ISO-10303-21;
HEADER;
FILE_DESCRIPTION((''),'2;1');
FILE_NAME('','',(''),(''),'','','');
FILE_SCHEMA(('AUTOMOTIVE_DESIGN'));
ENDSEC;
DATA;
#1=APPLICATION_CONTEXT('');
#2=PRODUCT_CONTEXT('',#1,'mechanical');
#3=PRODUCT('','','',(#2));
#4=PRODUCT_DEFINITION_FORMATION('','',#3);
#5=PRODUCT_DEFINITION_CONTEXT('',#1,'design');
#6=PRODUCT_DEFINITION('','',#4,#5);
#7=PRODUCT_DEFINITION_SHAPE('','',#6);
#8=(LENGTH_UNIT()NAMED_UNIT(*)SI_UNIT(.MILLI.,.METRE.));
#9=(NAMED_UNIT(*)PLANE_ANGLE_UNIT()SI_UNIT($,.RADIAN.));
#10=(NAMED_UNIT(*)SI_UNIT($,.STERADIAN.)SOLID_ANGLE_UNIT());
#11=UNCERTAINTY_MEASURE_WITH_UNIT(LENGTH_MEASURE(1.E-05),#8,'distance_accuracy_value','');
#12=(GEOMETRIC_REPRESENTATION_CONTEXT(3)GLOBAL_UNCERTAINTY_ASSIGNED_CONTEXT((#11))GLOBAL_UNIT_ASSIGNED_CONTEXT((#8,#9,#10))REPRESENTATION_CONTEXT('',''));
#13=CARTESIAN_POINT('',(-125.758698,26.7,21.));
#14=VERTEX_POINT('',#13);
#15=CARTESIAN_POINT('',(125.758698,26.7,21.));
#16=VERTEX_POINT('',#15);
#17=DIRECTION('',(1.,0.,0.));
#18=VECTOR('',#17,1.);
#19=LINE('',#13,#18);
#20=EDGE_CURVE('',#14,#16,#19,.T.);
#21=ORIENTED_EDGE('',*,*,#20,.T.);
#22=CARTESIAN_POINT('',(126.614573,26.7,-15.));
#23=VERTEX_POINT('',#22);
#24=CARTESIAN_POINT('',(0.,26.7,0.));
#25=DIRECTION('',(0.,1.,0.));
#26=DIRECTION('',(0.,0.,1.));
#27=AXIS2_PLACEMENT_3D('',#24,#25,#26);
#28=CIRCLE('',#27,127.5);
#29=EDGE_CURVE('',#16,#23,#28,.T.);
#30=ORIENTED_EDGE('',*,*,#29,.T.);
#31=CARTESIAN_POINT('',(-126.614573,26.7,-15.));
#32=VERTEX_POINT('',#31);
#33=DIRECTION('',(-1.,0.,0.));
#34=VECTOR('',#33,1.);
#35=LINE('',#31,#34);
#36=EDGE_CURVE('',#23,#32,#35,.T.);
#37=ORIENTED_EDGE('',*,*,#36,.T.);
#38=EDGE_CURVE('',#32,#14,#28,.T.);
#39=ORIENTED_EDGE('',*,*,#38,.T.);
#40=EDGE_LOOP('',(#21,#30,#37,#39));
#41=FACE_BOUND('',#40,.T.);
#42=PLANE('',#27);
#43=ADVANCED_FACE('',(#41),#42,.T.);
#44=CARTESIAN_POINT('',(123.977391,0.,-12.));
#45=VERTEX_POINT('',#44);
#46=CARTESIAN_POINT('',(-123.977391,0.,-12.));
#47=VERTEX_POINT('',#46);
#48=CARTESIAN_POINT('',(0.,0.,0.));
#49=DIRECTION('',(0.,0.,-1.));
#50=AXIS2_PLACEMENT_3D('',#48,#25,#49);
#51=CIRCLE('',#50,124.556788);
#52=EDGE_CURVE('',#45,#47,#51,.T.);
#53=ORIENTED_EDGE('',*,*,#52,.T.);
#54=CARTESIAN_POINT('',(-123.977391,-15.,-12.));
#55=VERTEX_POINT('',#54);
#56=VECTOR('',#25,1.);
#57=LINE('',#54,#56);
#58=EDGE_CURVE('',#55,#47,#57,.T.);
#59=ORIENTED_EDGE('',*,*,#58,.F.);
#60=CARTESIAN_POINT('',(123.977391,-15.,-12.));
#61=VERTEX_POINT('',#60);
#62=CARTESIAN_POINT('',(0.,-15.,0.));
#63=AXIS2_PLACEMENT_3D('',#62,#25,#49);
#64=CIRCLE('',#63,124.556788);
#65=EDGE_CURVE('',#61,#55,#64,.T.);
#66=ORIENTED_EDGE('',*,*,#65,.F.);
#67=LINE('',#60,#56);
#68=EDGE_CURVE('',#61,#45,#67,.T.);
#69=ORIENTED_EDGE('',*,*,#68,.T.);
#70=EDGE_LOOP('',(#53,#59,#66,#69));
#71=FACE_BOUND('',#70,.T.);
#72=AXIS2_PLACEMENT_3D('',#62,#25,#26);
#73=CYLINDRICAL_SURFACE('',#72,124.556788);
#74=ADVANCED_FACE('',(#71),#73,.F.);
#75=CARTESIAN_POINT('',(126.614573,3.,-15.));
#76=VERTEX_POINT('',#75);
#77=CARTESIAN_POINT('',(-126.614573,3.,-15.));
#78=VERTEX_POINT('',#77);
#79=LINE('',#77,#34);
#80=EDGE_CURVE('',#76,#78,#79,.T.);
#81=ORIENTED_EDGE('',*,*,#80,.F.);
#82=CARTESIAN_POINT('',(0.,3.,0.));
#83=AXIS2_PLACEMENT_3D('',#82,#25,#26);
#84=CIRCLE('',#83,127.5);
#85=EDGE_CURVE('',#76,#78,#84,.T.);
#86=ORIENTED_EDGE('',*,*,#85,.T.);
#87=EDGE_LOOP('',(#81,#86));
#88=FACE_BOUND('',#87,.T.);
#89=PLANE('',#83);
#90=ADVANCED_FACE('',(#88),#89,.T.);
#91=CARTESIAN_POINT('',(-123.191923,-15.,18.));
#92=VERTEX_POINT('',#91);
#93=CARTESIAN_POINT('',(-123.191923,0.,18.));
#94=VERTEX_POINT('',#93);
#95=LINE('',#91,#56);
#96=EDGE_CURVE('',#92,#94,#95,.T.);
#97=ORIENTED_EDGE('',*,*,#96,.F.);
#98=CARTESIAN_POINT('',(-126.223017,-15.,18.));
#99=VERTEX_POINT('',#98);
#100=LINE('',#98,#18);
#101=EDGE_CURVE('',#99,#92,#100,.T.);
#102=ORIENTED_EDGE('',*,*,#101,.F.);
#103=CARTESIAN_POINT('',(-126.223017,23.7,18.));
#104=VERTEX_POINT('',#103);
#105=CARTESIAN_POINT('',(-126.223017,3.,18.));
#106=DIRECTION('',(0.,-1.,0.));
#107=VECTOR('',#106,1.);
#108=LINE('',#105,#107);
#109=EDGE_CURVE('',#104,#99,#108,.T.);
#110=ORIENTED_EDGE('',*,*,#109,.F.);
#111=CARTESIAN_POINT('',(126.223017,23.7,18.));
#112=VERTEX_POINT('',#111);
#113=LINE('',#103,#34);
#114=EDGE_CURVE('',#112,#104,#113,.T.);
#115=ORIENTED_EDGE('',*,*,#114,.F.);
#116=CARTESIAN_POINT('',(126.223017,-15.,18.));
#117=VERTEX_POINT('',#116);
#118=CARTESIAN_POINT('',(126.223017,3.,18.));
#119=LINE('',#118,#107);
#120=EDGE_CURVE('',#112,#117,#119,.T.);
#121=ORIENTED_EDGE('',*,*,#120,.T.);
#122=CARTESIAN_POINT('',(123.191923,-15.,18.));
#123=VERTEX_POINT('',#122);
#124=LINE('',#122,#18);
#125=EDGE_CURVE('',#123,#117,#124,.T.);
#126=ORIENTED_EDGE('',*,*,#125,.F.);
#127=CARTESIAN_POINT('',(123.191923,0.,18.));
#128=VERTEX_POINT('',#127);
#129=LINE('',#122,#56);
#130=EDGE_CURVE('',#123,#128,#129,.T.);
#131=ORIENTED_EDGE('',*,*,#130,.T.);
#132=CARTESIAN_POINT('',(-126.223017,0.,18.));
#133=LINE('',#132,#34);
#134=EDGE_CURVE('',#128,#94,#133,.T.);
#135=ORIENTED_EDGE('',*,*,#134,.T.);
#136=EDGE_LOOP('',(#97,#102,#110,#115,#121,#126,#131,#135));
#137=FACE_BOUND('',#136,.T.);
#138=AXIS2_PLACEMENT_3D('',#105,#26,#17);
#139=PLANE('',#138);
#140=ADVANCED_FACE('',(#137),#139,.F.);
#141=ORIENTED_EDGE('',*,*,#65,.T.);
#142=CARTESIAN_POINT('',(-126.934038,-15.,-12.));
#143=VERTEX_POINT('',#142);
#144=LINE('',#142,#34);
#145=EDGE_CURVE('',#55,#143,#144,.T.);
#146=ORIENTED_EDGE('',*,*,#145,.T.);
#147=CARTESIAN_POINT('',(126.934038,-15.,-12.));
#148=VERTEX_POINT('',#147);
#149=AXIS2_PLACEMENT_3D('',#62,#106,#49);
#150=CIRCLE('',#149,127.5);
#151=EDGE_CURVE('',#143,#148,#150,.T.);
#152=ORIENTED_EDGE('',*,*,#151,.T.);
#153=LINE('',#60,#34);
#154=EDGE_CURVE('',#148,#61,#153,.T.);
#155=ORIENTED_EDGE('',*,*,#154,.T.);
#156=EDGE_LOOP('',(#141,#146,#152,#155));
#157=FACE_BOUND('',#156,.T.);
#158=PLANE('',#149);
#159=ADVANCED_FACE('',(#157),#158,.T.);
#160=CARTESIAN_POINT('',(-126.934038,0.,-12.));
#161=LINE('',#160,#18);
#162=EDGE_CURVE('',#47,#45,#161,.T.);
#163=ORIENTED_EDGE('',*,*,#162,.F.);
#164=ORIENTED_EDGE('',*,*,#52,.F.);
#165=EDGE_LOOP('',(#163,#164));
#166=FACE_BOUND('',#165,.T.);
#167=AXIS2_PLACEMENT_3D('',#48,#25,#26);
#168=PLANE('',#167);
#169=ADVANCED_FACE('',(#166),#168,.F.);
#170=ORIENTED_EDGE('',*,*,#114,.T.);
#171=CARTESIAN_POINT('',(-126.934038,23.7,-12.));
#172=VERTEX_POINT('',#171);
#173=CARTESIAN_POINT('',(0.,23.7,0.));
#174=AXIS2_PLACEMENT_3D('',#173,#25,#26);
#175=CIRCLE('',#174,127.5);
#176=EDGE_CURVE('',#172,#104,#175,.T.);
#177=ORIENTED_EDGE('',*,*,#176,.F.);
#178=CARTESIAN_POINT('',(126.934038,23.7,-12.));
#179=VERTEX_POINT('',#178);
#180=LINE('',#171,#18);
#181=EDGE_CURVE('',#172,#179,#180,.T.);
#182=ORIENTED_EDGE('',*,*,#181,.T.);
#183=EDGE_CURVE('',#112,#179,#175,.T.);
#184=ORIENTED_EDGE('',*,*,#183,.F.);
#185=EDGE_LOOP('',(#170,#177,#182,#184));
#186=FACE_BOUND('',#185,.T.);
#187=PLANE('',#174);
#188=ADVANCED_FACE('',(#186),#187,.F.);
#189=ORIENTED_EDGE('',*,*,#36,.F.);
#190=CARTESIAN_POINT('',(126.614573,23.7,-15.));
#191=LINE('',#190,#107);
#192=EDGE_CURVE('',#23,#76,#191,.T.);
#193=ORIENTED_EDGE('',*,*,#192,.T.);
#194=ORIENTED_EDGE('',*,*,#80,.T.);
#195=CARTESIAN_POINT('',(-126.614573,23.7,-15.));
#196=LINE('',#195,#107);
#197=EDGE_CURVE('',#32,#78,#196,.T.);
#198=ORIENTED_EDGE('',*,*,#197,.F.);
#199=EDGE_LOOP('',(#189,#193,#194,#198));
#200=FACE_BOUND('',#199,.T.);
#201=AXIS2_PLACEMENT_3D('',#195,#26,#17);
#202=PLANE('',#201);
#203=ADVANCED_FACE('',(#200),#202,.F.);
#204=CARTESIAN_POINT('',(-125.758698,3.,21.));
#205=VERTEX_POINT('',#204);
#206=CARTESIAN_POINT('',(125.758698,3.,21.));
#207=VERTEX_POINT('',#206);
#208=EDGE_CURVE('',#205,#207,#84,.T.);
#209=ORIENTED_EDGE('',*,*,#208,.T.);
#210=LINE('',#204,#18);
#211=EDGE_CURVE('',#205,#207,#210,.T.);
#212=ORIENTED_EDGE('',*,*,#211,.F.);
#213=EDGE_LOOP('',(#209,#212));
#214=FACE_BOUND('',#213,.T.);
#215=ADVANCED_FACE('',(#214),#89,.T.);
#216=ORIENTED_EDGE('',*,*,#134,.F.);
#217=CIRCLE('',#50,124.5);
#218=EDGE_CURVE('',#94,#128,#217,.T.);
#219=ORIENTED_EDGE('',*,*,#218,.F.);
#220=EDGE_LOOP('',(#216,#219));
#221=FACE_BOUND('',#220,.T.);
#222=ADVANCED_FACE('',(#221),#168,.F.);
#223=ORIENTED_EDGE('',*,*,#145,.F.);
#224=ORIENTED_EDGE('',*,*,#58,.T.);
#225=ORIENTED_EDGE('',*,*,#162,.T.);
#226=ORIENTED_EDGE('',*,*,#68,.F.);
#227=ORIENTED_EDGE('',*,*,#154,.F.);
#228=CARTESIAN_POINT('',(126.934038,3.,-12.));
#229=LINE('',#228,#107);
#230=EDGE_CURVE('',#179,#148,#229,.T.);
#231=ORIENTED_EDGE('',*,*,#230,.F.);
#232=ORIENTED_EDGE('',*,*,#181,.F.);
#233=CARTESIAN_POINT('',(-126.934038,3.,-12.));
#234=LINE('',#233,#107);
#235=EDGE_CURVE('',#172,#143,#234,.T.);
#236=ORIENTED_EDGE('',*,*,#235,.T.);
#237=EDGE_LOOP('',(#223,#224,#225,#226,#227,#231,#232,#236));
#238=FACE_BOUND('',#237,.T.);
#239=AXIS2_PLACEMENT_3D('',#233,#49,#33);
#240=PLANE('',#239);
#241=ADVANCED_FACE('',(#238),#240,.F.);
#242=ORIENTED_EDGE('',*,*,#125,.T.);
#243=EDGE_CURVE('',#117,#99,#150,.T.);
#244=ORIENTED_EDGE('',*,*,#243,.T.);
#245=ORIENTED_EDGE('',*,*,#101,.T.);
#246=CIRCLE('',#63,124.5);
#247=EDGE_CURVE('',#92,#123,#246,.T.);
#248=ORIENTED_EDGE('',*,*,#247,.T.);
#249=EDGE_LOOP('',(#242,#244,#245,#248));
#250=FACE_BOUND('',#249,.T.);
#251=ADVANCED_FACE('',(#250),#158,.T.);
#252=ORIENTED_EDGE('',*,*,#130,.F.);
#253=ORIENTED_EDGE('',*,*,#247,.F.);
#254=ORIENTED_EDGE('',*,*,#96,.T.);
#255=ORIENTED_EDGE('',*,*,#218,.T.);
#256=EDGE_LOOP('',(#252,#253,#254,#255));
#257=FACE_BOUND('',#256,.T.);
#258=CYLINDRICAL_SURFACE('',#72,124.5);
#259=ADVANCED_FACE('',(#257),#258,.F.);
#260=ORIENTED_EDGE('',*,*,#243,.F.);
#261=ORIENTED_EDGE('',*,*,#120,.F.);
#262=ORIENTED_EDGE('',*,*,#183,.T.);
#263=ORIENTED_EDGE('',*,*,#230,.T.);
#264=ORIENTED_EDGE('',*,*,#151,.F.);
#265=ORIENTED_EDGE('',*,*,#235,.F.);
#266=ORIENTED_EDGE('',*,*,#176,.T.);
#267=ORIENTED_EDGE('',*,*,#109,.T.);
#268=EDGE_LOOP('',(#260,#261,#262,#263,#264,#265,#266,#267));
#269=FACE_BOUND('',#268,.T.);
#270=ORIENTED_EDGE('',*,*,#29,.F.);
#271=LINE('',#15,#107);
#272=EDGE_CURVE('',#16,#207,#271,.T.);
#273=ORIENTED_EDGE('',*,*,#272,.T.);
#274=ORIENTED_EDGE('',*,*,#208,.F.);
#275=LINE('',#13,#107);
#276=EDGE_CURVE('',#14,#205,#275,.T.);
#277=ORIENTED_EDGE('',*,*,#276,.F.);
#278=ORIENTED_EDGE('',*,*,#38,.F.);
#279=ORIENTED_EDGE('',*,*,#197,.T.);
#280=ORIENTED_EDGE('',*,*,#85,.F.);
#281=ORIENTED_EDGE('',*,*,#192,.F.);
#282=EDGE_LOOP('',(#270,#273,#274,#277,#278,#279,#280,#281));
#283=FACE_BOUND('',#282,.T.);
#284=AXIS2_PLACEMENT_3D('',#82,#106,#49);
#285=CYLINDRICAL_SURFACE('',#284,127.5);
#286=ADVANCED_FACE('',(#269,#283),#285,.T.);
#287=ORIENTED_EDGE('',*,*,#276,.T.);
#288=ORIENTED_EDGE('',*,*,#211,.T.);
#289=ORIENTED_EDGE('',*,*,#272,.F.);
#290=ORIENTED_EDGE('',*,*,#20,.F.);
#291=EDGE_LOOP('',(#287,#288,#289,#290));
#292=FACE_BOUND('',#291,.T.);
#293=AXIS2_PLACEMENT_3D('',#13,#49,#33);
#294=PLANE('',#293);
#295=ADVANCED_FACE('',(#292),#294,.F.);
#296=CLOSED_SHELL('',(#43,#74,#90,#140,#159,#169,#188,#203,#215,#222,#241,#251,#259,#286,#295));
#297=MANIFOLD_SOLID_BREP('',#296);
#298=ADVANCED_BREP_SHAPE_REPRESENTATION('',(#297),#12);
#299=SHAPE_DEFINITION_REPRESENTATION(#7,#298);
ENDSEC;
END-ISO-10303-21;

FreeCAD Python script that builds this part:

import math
import FreeCAD as App
import Part
import Sketcher
from FreeCAD import Vector
Q = App.Units.Quantity

doc = App.newDocument("Part")
params = doc.addObject("Spreadsheet::Sheet", "Params")
for row, (alias, value) in enumerate([
    ("sketch1_radius", "127.5 mm"),
    ("pad1_length", "3 mm"),
    ("sketch2_radius", "127.5 mm"),
    ("pad2_length", "3 mm"),
    ("sketch3_radius", "127.499998 mm"),
    ("pad3_length", "20.7 mm"),
    ("sketch4_radius", "127.5 mm"),
    ("pad4_length", "3 mm"),
    ("sketch5_radius", "127.5 mm"),
    ("sketch5_radius2", "124.5 mm"),
    ("pad5_length", "15 mm"),
], start=1):
    params.set(f"A{row}", alias)
    params.set(f"B{row}", "=" + value)
    params.setAlias(f"B{row}", alias)

body = doc.addObject("PartDesign::Body", "Body")

sketch1 = body.newObject("Sketcher::SketchObject", "Sketch")
sketch1.AttachmentSupport = (doc.getObject("XZ_Plane"), [""])
sketch1.MapMode = "FlatFace"
sketch1.addGeometry([
    Part.LineSegment(Vector(-127, -12, 0), Vector(127, -12, 0)),
    Part.ArcOfCircle(Part.Circle(Vector(0, 0, 0), Vector(0, 0, 1), 128), math.radians(-175), math.radians(-5)),
], False)
sketch1.addConstraint([
    Sketcher.Constraint("Coincident", 0, 1, 1, 1),
    Sketcher.Constraint("Coincident", 1, 2, 0, 2),
    Sketcher.Constraint("Horizontal", 0),
    Sketcher.Constraint("Coincident", 1, 3, -1, 1),
    Sketcher.Constraint("Radius", 1, Q("127.5 mm")),
    Sketcher.Constraint("DistanceY", 0, 1, -1, 1, Q("12 mm")),
])
sketch1.setExpression("Constraints[4]", "Params.sketch1_radius")
pad1 = body.newObject("PartDesign::Pad", "Pad")
pad1.Profile = sketch1
pad1.setExpression("Length", "Params.pad1_length")
pad1.Reversed = True
body2 = doc.addObject("PartDesign::Body", "Body001")

sketch2 = body2.newObject("Sketcher::SketchObject", "Sketch001")
sketch2.AttachmentSupport = (doc.getObject("XZ_Plane001"), [""])
sketch2.MapMode = "FlatFace"
sketch2.addGeometry([
    Part.LineSegment(Vector(126, 18, 0), Vector(-126, 18, 0)),
    Part.ArcOfCircle(Part.Circle(Vector(0, 0, 0), Vector(0, 0, 1), 127), math.radians(8), math.radians(172)),
], False)
sketch2.addConstraint([
    Sketcher.Constraint("Coincident", 0, 1, 1, 1),
    Sketcher.Constraint("Coincident", 1, 2, 0, 2),
    Sketcher.Constraint("Horizontal", 0),
    Sketcher.Constraint("Coincident", 1, 3, -1, 1),
    Sketcher.Constraint("Radius", 1, Q("127.5 mm")),
    Sketcher.Constraint("DistanceY", -1, 1, 0, 1, Q("18 mm")),
])
sketch2.setExpression("Constraints[4]", "Params.sketch2_radius")
pad2 = body2.newObject("PartDesign::Pad", "Pad001")
pad2.Profile = sketch2
pad2.setExpression("Length", "Params.pad2_length")
pad2.Reversed = True
body.AllowCompound = True
doc.recompute()

boolean = body.newObject("PartDesign::Boolean", "Boolean")
boolean.Type = "Fuse"
boolean.addObjects([body2])

sketch3 = body.newObject("Sketcher::SketchObject", "Sketch002")
sketch3.AttachmentSupport = (doc.getObject("XZ_Plane"), [""])
sketch3.MapMode = "FlatFace"
sketch3.AttachmentOffset = App.Placement(Vector(0, 0, -3), App.Rotation())
sketch3.addGeometry([
    Part.LineSegment(Vector(126.6, -15, 0), Vector(-126.6, -15, 0)),
    Part.ArcOfCircle(Part.Circle(Vector(0, 0, 0), Vector(0, 0, 1), 127.5), math.radians(-174.6), math.radians(-173.24)),
    Part.LineSegment(Vector(-126.9, -12, 0), Vector(126.9, -12, 0)),
    Part.ArcOfCircle(Part.Circle(Vector(0, 0, 0), Vector(0, 0, 1), 127.5), math.radians(-6.76), math.radians(-5.4)),
    Part.LineSegment(Vector(-125.8, 21, 0), Vector(125.8, 21, 0)),
    Part.ArcOfCircle(Part.Circle(Vector(0, 0, 0), Vector(0, 0, 1), 127.5), math.radians(8.12), math.radians(9.48)),
    Part.LineSegment(Vector(126.2, 18, 0), Vector(-126.2, 18, 0)),
    Part.ArcOfCircle(Part.Circle(Vector(0, 0, 0), Vector(0, 0, 1), 127.5), math.radians(170.52), math.radians(171.88)),
], False)
sketch3.addConstraint([
    Sketcher.Constraint("Coincident", 0, 2, 1, 2),
    Sketcher.Constraint("Coincident", 1, 1, 2, 1),
    Sketcher.Constraint("Coincident", 2, 2, 3, 2),
    Sketcher.Constraint("Coincident", 3, 1, 0, 1),
    Sketcher.Constraint("Coincident", 4, 2, 5, 2),
    Sketcher.Constraint("Coincident", 5, 1, 6, 1),
    Sketcher.Constraint("Coincident", 6, 2, 7, 2),
    Sketcher.Constraint("Coincident", 7, 1, 4, 1),
    Sketcher.Constraint("Horizontal", 0),
    Sketcher.Constraint("Horizontal", 2),
    Sketcher.Constraint("Horizontal", 4),
    Sketcher.Constraint("Horizontal", 6),
    Sketcher.Constraint("Coincident", 1, 3, -1, 1),
    Sketcher.Constraint("Coincident", 3, 3, -1, 1),
    Sketcher.Constraint("Coincident", 5, 3, -1, 1),
    Sketcher.Constraint("Coincident", 7, 3, -1, 1),
    Sketcher.Constraint("Equal", 1, 3),
    Sketcher.Constraint("Equal", 3, 5),
    Sketcher.Constraint("Equal", 5, 7),
    Sketcher.Constraint("Radius", 1, Q("127.499998 mm")),
    Sketcher.Constraint("DistanceY", 0, 2, -1, 1, Q("15 mm")),
    Sketcher.Constraint("DistanceY", 1, 1, -1, 1, Q("12 mm")),
    Sketcher.Constraint("DistanceY", -1, 1, 4, 2, Q("21 mm")),
    Sketcher.Constraint("DistanceY", -1, 1, 5, 1, Q("18 mm")),
])
sketch3.setExpression("Constraints[19]", "Params.sketch3_radius")
pad3 = body.newObject("PartDesign::Pad", "Pad002")
pad3.Profile = sketch3
pad3.setExpression("Length", "Params.pad3_length")
pad3.Reversed = True

sketch4 = body.newObject("Sketcher::SketchObject", "Sketch003")
sketch4.AttachmentSupport = (doc.getObject("XZ_Plane"), [""])
sketch4.MapMode = "FlatFace"
sketch4.AttachmentOffset = App.Placement(Vector(0, 0, -23.7), App.Rotation())
sketch4.addGeometry([
    Part.LineSegment(Vector(127, -15, 0), Vector(-127, -15, 0)),
    Part.ArcOfCircle(Part.Circle(Vector(0, 0, 0), Vector(0, 0, 1), 127), math.radians(170.52), math.radians(186.76)),
    Part.LineSegment(Vector(-126, 21, 0), Vector(126, 21, 0)),
    Part.ArcOfCircle(Part.Circle(Vector(0, 0, 0), Vector(0, 0, 1), 127), math.radians(-6.76), math.radians(9.48)),
], False)
sketch4.addConstraint([
    Sketcher.Constraint("Coincident", 0, 2, 1, 2),
    Sketcher.Constraint("Coincident", 1, 1, 2, 1),
    Sketcher.Constraint("Coincident", 2, 2, 3, 2),
    Sketcher.Constraint("Coincident", 3, 1, 0, 1),
    Sketcher.Constraint("Horizontal", 0),
    Sketcher.Constraint("Horizontal", 2),
    Sketcher.Constraint("Coincident", 1, 3, -1, 1),
    Sketcher.Constraint("Coincident", 3, 3, -1, 1),
    Sketcher.Constraint("Equal", 1, 3),
    Sketcher.Constraint("Radius", 1, Q("127.5 mm")),
    Sketcher.Constraint("DistanceY", 0, 2, -1, 1, Q("15 mm")),
    Sketcher.Constraint("DistanceY", -1, 1, 1, 1, Q("21 mm")),
])
sketch4.setExpression("Constraints[9]", "Params.sketch4_radius")
pad4 = body.newObject("PartDesign::Pad", "Pad003")
pad4.Profile = sketch4
pad4.setExpression("Length", "Params.pad4_length")
pad4.Reversed = True

sketch5 = body.newObject("Sketcher::SketchObject", "Sketch004")
sketch5.AttachmentSupport = (doc.getObject("XZ_Plane"), [""])
sketch5.MapMode = "FlatFace"
sketch5.AttachmentOffset = App.Placement(Vector(0, 0, 15), App.Rotation())
sketch5.addGeometry([
    Part.LineSegment(Vector(-124, -12, 0), Vector(-126.9, -12, 0)),
    Part.ArcOfCircle(Part.Circle(Vector(0, 0, 0), Vector(0, 0, 1), 127.5), math.radians(-175), math.radians(-5)),
    Part.LineSegment(Vector(126.9, -12, 0), Vector(124, -12, 0)),
    Part.ArcOfCircle(Part.Circle(Vector(0, 0, 0), Vector(0, 0, 1), 124.6), math.radians(-174), math.radians(-6)),
    Part.LineSegment(Vector(123.2, 18, 0), Vector(126.2, 18, 0)),
    Part.ArcOfCircle(Part.Circle(Vector(0, 0, 0), Vector(0, 0, 1), 127.5), math.radians(8), math.radians(172)),
    Part.LineSegment(Vector(-126.2, 18, 0), Vector(-123.2, 18, 0)),
    Part.ArcOfCircle(Part.Circle(Vector(0, 0, 0), Vector(0, 0, 1), 124.5), math.radians(8), math.radians(172)),
], False)
sketch5.addConstraint([
    Sketcher.Constraint("Coincident", 0, 2, 1, 1),
    Sketcher.Constraint("Coincident", 1, 2, 2, 1),
    Sketcher.Constraint("Coincident", 2, 2, 3, 2),
    Sketcher.Constraint("Coincident", 3, 1, 0, 1),
    Sketcher.Constraint("Coincident", 4, 2, 5, 1),
    Sketcher.Constraint("Coincident", 5, 2, 6, 1),
    Sketcher.Constraint("Coincident", 6, 2, 7, 2),
    Sketcher.Constraint("Coincident", 7, 1, 4, 1),
    Sketcher.Constraint("Horizontal", 0),
    Sketcher.Constraint("Horizontal", 2),
    Sketcher.Constraint("Horizontal", 4),
    Sketcher.Constraint("Horizontal", 6),
    Sketcher.Constraint("Coincident", 1, 3, -1, 1),
    Sketcher.Constraint("Coincident", 3, 3, -1, 1),
    Sketcher.Constraint("Coincident", 5, 3, -1, 1),
    Sketcher.Constraint("Coincident", 7, 3, -1, 1),
    Sketcher.Constraint("Equal", 1, 5),
    Sketcher.Constraint("Horizontal", 0, 2, 1, 2),
    Sketcher.Constraint("Horizontal", 4, 2, 5, 2),
    Sketcher.Constraint("Radius", 1, Q("127.5 mm")),
    Sketcher.Constraint("Radius", 7, Q("124.5 mm")),
    Sketcher.Constraint("DistanceY", 0, 2, -1, 1, Q("12 mm")),
    Sketcher.Constraint("DistanceY", -1, 1, 4, 2, Q("18 mm")),
    Sketcher.Constraint("Radius", 3, Q("124.556788 mm")),
])
sketch5.setExpression("Constraints[19]", "Params.sketch5_radius")
sketch5.setExpression("Constraints[20]", "Params.sketch5_radius2")
pad5 = body.newObject("PartDesign::Pad", "Pad004")
pad5.Profile = sketch5
pad5.setExpression("Length", "Params.pad5_length")
pad5.Reversed = True

doc.recompute()
